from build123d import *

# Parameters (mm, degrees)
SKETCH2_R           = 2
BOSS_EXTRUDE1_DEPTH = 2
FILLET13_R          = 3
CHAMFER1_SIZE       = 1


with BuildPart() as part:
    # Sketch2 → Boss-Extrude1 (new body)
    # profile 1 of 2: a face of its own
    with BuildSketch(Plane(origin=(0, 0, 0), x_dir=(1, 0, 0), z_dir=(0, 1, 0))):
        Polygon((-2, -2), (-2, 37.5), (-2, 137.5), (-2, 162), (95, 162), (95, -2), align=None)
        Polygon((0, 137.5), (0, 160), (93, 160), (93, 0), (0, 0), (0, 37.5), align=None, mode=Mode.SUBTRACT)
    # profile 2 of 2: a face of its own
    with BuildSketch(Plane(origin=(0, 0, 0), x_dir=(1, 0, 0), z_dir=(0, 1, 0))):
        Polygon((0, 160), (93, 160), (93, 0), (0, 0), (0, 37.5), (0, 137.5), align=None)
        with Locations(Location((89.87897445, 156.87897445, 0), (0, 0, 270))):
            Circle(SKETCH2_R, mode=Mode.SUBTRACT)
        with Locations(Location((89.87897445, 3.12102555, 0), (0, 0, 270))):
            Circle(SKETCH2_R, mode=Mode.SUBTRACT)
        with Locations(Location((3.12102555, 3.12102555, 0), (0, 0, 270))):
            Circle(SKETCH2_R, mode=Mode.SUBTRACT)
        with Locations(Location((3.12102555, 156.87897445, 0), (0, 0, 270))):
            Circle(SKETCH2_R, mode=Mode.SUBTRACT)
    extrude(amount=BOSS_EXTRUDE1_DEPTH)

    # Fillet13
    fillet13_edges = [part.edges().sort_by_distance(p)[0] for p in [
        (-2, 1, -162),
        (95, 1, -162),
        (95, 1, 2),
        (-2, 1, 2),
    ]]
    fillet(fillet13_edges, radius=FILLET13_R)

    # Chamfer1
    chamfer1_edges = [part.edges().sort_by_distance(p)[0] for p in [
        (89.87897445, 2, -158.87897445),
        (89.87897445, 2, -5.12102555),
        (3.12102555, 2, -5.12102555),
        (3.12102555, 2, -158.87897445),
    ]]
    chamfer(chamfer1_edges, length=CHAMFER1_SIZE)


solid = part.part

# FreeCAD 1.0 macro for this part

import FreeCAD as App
import Part
import Sketcher
Q = App.Units.Quantity


def edges_at(feature, points):
    """Names of the edges that pass closest to the given points."""
    edges = feature.Shape.Edges
    near = lambda p: min(range(len(edges)), key=lambda i: edges[i].distToShape(Part.Vertex(*p))[0])
    return sorted({f"Edge{near(p) + 1}" for p in points})


def add_polygon(sketch, points):
    """Adds a closed chain of lines whose ends are joined by coincident constraints."""
    first, n = sketch.GeometryCount, len(points)
    for a, b in zip(points, points[1:] + points[:1]):
        sketch.addGeometry(Part.LineSegment(App.Vector(*a, 0), App.Vector(*b, 0)), False)
    for i in range(n):
        sketch.addConstraint(Sketcher.Constraint("Coincident", first + i, 2, first + (i + 1) % n, 1))

doc = App.newDocument("Part")
body = doc.addObject("PartDesign::Body", "Body")

sketch1 = doc.addObject("Sketcher::SketchObject", "Sketch")
body.addObject(sketch1)
sketch1.AttachmentSupport = (doc.XZ_Plane, [""])
sketch1.MapMode = "FlatFace"
add_polygon(sketch1, [(-2, -162), (-2, 2), (95, 2), (95, -162)])
sketch1.addGeometry(Part.Circle(App.Vector(3.1, -156.9, 0), App.Vector(0, 0, 1), 2), False)
sketch1.addGeometry(Part.Circle(App.Vector(89.9, -156.9, 0), App.Vector(0, 0, 1), 2), False)
sketch1.addGeometry(Part.Circle(App.Vector(89.9, -3.1, 0), App.Vector(0, 0, 1), 2), False)
sketch1.addGeometry(Part.Circle(App.Vector(3.1, -3.1, 0), App.Vector(0, 0, 1), 2), False)
sketch1.addConstraint([
    Sketcher.Constraint("Vertical", 0),
    Sketcher.Constraint("Horizontal", 1),
    Sketcher.Constraint("Vertical", 2),
    Sketcher.Constraint("Horizontal", 3),
    Sketcher.Constraint("Equal", 4, 5),
    Sketcher.Constraint("Equal", 5, 6),
    Sketcher.Constraint("Equal", 6, 7),
    Sketcher.Constraint("Horizontal", 4, 3, 5, 3),
    Sketcher.Constraint("Horizontal", 6, 3, 7, 3),
    Sketcher.Constraint("Vertical", 5, 3, 6, 3),
    Sketcher.Constraint("Vertical", 4, 3, 7, 3),
    Sketcher.Constraint("Diameter", 4, Q("4 mm")),
    Sketcher.Constraint("DistanceX", 1, 1, 1, 2, Q("97 mm")),
    Sketcher.Constraint("DistanceY", 0, 1, 0, 2, Q("164 mm")),
    Sketcher.Constraint("DistanceX", 0, 2, -1, 1, Q("2 mm")),
    Sketcher.Constraint("DistanceY", -1, 1, 0, 2, Q("2 mm")),
    Sketcher.Constraint("DistanceX", 4, 3, 5, 3, Q("86.757949 mm")),
    Sketcher.Constraint("DistanceY", 5, 3, 6, 3, Q("153.757949 mm")),
    Sketcher.Constraint("DistanceX", -1, 1, 4, 3, Q("3.121026 mm")),
    Sketcher.Constraint("DistanceY", 4, 3, -1, 1, Q("156.878974 mm")),
])
pad1 = doc.addObject("PartDesign::Pad", "Pad")
body.addObject(pad1)
pad1.Profile = sketch1
pad1.Length = 2
pad1.Reversed = True
doc.recompute()

fillet = doc.addObject("PartDesign::Fillet", "Fillet")
body.addObject(fillet)
fillet.Base = (pad1, edges_at(pad1, [
    (-2, 1, -162),
    (95, 1, -162),
    (95, 1, 2),
    (-2, 1, 2),
]))
fillet.Radius = 3
doc.recompute()

chamfer = doc.addObject("PartDesign::Chamfer", "Chamfer")
body.addObject(chamfer)
chamfer.Base = (fillet, edges_at(fillet, [
    (89.879, 2, -158.879),
    (89.879, 2, -5.121),
    (3.121, 2, -5.121),
    (3.121, 2, -158.879),
]))
chamfer.Size = 1

doc.recompute()
